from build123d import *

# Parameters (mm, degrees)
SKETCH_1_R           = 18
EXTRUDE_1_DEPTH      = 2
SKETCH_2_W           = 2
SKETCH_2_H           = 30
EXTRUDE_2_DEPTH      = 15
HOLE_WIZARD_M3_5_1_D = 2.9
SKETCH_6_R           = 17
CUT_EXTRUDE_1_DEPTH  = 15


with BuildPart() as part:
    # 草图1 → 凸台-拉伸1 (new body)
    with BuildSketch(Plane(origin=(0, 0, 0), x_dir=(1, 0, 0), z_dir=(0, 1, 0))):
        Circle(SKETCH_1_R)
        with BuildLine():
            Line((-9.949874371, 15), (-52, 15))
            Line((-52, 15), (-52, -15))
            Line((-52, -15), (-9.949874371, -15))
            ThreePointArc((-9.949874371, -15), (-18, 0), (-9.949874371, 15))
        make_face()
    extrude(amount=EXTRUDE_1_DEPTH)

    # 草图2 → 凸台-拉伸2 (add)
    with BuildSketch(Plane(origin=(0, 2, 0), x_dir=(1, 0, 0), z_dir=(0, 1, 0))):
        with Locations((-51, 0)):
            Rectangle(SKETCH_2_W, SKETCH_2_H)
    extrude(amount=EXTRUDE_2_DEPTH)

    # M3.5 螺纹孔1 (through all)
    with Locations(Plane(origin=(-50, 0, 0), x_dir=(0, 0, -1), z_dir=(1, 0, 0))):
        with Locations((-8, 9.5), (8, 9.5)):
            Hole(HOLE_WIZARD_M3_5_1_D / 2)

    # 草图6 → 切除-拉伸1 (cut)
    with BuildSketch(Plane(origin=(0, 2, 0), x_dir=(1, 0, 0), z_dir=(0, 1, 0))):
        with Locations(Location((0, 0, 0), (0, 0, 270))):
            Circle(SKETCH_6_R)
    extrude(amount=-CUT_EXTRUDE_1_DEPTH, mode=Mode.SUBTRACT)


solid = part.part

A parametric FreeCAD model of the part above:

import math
import FreeCAD as App
import Part
import Sketcher
from FreeCAD import Vector
Q = App.Units.Quantity

doc = App.newDocument("Part")
body = doc.addObject("PartDesign::Body", "Body")

# Sketch on XZ plane
sketch1 = body.newObject("Sketcher::SketchObject", "Sketch")
sketch1.AttachmentSupport = (doc.getObject("XZ_Plane"), [""])
sketch1.MapMode = "FlatFace"
sketch1.addGeometry([
    Part.LineSegment(Vector(-10, -15, 0), Vector(-52, -15, 0)),
    Part.LineSegment(Vector(-52, -15, 0), Vector(-52, 15, 0)),
    Part.LineSegment(Vector(-52, 15, 0), Vector(-10, 15, 0)),
    Part.ArcOfCircle(Part.Circle(Vector(0, 0, 0), Vector(0, 0, 1), 18), math.radians(-124), math.radians(124)),
], False)
sketch1.addConstraint([
    Sketcher.Constraint("Coincident", 0, 2, 1, 1),
    Sketcher.Constraint("Coincident", 1, 2, 2, 1),
    Sketcher.Constraint("Coincident", 2, 2, 3, 2),
    Sketcher.Constraint("Coincident", 3, 1, 0, 1),
    Sketcher.Constraint("Horizontal", 0),
    Sketcher.Constraint("Vertical", 1),
    Sketcher.Constraint("Horizontal", 2),
    Sketcher.Constraint("Coincident", 3, 3, -1, 1),
    Sketcher.Constraint("Vertical", 2, 2, 3, 1),
    Sketcher.Constraint("Radius", 3, Q("18 mm")),
    Sketcher.Constraint("DistanceY", 1, 1, 1, 2, Q("30 mm")),
    Sketcher.Constraint("DistanceX", 0, 2, -1, 1, Q("52 mm")),
])
pad1 = body.newObject("PartDesign::Pad", "Pad")
pad1.Profile = sketch1
pad1.Length = 2
pad1.Reversed = True

# Sketch on XZ plane
sketch2 = body.newObject("Sketcher::SketchObject", "Sketch001")
sketch2.AttachmentSupport = (doc.getObject("XZ_Plane"), [""])
sketch2.MapMode = "FlatFace"
sketch2.AttachmentOffset = App.Placement(Vector(0, 0, -2), App.Rotation())
sketch2.addGeometry([
    Part.LineSegment(Vector(-52, -15, 0), Vector(-52, 15, 0)),
    Part.LineSegment(Vector(-52, 15, 0), Vector(-50, 15, 0)),
    Part.LineSegment(Vector(-50, 15, 0), Vector(-50, -15, 0)),
    Part.LineSegment(Vector(-50, -15, 0), Vector(-52, -15, 0)),
], False)
sketch2.addConstraint([
    Sketcher.Constraint("Coincident", 0, 2, 1, 1),
    Sketcher.Constraint("Coincident", 1, 2, 2, 1),
    Sketcher.Constraint("Coincident", 2, 2, 3, 1),
    Sketcher.Constraint("Coincident", 3, 2, 0, 1),
    Sketcher.Constraint("Vertical", 0),
    Sketcher.Constraint("Horizontal", 1),
    Sketcher.Constraint("Vertical", 2),
    Sketcher.Constraint("Horizontal", 3),
    Sketcher.Constraint("DistanceX", 1, 1, 1, 2, Q("2 mm")),
    Sketcher.Constraint("DistanceY", 0, 1, 0, 2, Q("30 mm")),
    Sketcher.Constraint("DistanceX", 0, 2, -1, 1, Q("52 mm")),
    Sketcher.Constraint("DistanceY", -1, 1, 0, 2, Q("15 mm")),
])
pad2 = body.newObject("PartDesign::Pad", "Pad001")
pad2.Profile = sketch2
pad2.Length = 15
pad2.Reversed = True

# Sketch on YZ plane
sketch3 = body.newObject("Sketcher::SketchObject", "Sketch002")
sketch3.AttachmentSupport = (doc.getObject("YZ_Plane"), [""])
sketch3.MapMode = "FlatFace"
sketch3.AttachmentOffset = App.Placement(Vector(0, 0, -50), App.Rotation())
sketch3.addGeometry([
    Part.Circle(Vector(9.5, 8, 0), Vector(0, 0, 1), 1.4),
    Part.Circle(Vector(9.5, -8, 0), Vector(0, 0, 1), 1.4),
], False)
sketch3.addConstraint([
    Sketcher.Constraint("Equal", 0, 1),
    Sketcher.Constraint("Symmetric", 0, 3, 1, 3, -1),
    Sketcher.Constraint("Diameter", 0, Q("2.9 mm")),
    Sketcher.Constraint("DistanceY", -1, 1, 0, 3, Q("8 mm")),
    Sketcher.Constraint("DistanceX", -1, 1, 0, 3, Q("9.5 mm")),
])
doc.recompute()
hole = body.newObject("PartDesign::Hole", "Hole")
hole.Profile = sketch3
hole.ThreadType = "None"
hole.Diameter = 2.9
hole.DepthType = "ThroughAll"

# Sketch on XZ plane
sketch4 = body.newObject("Sketcher::SketchObject", "Sketch003")
sketch4.AttachmentSupport = (doc.getObject("XZ_Plane"), [""])
sketch4.MapMode = "FlatFace"
sketch4.AttachmentOffset = App.Placement(Vector(0, 0, -2), App.Rotation())
sketch4.addGeometry(Part.Circle(Vector(0, 0, 0), Vector(0, 0, 1), 17), False)
sketch4.addConstraint([
    Sketcher.Constraint("Coincident", 0, 3, -1, 1),
    Sketcher.Constraint("Diameter", 0, Q("34 mm")),
])
pocket1 = body.newObject("PartDesign::Pocket", "Pocket")
pocket1.Profile = sketch4
pocket1.Length = 15
pocket1.Reversed = True

doc.recompute()
